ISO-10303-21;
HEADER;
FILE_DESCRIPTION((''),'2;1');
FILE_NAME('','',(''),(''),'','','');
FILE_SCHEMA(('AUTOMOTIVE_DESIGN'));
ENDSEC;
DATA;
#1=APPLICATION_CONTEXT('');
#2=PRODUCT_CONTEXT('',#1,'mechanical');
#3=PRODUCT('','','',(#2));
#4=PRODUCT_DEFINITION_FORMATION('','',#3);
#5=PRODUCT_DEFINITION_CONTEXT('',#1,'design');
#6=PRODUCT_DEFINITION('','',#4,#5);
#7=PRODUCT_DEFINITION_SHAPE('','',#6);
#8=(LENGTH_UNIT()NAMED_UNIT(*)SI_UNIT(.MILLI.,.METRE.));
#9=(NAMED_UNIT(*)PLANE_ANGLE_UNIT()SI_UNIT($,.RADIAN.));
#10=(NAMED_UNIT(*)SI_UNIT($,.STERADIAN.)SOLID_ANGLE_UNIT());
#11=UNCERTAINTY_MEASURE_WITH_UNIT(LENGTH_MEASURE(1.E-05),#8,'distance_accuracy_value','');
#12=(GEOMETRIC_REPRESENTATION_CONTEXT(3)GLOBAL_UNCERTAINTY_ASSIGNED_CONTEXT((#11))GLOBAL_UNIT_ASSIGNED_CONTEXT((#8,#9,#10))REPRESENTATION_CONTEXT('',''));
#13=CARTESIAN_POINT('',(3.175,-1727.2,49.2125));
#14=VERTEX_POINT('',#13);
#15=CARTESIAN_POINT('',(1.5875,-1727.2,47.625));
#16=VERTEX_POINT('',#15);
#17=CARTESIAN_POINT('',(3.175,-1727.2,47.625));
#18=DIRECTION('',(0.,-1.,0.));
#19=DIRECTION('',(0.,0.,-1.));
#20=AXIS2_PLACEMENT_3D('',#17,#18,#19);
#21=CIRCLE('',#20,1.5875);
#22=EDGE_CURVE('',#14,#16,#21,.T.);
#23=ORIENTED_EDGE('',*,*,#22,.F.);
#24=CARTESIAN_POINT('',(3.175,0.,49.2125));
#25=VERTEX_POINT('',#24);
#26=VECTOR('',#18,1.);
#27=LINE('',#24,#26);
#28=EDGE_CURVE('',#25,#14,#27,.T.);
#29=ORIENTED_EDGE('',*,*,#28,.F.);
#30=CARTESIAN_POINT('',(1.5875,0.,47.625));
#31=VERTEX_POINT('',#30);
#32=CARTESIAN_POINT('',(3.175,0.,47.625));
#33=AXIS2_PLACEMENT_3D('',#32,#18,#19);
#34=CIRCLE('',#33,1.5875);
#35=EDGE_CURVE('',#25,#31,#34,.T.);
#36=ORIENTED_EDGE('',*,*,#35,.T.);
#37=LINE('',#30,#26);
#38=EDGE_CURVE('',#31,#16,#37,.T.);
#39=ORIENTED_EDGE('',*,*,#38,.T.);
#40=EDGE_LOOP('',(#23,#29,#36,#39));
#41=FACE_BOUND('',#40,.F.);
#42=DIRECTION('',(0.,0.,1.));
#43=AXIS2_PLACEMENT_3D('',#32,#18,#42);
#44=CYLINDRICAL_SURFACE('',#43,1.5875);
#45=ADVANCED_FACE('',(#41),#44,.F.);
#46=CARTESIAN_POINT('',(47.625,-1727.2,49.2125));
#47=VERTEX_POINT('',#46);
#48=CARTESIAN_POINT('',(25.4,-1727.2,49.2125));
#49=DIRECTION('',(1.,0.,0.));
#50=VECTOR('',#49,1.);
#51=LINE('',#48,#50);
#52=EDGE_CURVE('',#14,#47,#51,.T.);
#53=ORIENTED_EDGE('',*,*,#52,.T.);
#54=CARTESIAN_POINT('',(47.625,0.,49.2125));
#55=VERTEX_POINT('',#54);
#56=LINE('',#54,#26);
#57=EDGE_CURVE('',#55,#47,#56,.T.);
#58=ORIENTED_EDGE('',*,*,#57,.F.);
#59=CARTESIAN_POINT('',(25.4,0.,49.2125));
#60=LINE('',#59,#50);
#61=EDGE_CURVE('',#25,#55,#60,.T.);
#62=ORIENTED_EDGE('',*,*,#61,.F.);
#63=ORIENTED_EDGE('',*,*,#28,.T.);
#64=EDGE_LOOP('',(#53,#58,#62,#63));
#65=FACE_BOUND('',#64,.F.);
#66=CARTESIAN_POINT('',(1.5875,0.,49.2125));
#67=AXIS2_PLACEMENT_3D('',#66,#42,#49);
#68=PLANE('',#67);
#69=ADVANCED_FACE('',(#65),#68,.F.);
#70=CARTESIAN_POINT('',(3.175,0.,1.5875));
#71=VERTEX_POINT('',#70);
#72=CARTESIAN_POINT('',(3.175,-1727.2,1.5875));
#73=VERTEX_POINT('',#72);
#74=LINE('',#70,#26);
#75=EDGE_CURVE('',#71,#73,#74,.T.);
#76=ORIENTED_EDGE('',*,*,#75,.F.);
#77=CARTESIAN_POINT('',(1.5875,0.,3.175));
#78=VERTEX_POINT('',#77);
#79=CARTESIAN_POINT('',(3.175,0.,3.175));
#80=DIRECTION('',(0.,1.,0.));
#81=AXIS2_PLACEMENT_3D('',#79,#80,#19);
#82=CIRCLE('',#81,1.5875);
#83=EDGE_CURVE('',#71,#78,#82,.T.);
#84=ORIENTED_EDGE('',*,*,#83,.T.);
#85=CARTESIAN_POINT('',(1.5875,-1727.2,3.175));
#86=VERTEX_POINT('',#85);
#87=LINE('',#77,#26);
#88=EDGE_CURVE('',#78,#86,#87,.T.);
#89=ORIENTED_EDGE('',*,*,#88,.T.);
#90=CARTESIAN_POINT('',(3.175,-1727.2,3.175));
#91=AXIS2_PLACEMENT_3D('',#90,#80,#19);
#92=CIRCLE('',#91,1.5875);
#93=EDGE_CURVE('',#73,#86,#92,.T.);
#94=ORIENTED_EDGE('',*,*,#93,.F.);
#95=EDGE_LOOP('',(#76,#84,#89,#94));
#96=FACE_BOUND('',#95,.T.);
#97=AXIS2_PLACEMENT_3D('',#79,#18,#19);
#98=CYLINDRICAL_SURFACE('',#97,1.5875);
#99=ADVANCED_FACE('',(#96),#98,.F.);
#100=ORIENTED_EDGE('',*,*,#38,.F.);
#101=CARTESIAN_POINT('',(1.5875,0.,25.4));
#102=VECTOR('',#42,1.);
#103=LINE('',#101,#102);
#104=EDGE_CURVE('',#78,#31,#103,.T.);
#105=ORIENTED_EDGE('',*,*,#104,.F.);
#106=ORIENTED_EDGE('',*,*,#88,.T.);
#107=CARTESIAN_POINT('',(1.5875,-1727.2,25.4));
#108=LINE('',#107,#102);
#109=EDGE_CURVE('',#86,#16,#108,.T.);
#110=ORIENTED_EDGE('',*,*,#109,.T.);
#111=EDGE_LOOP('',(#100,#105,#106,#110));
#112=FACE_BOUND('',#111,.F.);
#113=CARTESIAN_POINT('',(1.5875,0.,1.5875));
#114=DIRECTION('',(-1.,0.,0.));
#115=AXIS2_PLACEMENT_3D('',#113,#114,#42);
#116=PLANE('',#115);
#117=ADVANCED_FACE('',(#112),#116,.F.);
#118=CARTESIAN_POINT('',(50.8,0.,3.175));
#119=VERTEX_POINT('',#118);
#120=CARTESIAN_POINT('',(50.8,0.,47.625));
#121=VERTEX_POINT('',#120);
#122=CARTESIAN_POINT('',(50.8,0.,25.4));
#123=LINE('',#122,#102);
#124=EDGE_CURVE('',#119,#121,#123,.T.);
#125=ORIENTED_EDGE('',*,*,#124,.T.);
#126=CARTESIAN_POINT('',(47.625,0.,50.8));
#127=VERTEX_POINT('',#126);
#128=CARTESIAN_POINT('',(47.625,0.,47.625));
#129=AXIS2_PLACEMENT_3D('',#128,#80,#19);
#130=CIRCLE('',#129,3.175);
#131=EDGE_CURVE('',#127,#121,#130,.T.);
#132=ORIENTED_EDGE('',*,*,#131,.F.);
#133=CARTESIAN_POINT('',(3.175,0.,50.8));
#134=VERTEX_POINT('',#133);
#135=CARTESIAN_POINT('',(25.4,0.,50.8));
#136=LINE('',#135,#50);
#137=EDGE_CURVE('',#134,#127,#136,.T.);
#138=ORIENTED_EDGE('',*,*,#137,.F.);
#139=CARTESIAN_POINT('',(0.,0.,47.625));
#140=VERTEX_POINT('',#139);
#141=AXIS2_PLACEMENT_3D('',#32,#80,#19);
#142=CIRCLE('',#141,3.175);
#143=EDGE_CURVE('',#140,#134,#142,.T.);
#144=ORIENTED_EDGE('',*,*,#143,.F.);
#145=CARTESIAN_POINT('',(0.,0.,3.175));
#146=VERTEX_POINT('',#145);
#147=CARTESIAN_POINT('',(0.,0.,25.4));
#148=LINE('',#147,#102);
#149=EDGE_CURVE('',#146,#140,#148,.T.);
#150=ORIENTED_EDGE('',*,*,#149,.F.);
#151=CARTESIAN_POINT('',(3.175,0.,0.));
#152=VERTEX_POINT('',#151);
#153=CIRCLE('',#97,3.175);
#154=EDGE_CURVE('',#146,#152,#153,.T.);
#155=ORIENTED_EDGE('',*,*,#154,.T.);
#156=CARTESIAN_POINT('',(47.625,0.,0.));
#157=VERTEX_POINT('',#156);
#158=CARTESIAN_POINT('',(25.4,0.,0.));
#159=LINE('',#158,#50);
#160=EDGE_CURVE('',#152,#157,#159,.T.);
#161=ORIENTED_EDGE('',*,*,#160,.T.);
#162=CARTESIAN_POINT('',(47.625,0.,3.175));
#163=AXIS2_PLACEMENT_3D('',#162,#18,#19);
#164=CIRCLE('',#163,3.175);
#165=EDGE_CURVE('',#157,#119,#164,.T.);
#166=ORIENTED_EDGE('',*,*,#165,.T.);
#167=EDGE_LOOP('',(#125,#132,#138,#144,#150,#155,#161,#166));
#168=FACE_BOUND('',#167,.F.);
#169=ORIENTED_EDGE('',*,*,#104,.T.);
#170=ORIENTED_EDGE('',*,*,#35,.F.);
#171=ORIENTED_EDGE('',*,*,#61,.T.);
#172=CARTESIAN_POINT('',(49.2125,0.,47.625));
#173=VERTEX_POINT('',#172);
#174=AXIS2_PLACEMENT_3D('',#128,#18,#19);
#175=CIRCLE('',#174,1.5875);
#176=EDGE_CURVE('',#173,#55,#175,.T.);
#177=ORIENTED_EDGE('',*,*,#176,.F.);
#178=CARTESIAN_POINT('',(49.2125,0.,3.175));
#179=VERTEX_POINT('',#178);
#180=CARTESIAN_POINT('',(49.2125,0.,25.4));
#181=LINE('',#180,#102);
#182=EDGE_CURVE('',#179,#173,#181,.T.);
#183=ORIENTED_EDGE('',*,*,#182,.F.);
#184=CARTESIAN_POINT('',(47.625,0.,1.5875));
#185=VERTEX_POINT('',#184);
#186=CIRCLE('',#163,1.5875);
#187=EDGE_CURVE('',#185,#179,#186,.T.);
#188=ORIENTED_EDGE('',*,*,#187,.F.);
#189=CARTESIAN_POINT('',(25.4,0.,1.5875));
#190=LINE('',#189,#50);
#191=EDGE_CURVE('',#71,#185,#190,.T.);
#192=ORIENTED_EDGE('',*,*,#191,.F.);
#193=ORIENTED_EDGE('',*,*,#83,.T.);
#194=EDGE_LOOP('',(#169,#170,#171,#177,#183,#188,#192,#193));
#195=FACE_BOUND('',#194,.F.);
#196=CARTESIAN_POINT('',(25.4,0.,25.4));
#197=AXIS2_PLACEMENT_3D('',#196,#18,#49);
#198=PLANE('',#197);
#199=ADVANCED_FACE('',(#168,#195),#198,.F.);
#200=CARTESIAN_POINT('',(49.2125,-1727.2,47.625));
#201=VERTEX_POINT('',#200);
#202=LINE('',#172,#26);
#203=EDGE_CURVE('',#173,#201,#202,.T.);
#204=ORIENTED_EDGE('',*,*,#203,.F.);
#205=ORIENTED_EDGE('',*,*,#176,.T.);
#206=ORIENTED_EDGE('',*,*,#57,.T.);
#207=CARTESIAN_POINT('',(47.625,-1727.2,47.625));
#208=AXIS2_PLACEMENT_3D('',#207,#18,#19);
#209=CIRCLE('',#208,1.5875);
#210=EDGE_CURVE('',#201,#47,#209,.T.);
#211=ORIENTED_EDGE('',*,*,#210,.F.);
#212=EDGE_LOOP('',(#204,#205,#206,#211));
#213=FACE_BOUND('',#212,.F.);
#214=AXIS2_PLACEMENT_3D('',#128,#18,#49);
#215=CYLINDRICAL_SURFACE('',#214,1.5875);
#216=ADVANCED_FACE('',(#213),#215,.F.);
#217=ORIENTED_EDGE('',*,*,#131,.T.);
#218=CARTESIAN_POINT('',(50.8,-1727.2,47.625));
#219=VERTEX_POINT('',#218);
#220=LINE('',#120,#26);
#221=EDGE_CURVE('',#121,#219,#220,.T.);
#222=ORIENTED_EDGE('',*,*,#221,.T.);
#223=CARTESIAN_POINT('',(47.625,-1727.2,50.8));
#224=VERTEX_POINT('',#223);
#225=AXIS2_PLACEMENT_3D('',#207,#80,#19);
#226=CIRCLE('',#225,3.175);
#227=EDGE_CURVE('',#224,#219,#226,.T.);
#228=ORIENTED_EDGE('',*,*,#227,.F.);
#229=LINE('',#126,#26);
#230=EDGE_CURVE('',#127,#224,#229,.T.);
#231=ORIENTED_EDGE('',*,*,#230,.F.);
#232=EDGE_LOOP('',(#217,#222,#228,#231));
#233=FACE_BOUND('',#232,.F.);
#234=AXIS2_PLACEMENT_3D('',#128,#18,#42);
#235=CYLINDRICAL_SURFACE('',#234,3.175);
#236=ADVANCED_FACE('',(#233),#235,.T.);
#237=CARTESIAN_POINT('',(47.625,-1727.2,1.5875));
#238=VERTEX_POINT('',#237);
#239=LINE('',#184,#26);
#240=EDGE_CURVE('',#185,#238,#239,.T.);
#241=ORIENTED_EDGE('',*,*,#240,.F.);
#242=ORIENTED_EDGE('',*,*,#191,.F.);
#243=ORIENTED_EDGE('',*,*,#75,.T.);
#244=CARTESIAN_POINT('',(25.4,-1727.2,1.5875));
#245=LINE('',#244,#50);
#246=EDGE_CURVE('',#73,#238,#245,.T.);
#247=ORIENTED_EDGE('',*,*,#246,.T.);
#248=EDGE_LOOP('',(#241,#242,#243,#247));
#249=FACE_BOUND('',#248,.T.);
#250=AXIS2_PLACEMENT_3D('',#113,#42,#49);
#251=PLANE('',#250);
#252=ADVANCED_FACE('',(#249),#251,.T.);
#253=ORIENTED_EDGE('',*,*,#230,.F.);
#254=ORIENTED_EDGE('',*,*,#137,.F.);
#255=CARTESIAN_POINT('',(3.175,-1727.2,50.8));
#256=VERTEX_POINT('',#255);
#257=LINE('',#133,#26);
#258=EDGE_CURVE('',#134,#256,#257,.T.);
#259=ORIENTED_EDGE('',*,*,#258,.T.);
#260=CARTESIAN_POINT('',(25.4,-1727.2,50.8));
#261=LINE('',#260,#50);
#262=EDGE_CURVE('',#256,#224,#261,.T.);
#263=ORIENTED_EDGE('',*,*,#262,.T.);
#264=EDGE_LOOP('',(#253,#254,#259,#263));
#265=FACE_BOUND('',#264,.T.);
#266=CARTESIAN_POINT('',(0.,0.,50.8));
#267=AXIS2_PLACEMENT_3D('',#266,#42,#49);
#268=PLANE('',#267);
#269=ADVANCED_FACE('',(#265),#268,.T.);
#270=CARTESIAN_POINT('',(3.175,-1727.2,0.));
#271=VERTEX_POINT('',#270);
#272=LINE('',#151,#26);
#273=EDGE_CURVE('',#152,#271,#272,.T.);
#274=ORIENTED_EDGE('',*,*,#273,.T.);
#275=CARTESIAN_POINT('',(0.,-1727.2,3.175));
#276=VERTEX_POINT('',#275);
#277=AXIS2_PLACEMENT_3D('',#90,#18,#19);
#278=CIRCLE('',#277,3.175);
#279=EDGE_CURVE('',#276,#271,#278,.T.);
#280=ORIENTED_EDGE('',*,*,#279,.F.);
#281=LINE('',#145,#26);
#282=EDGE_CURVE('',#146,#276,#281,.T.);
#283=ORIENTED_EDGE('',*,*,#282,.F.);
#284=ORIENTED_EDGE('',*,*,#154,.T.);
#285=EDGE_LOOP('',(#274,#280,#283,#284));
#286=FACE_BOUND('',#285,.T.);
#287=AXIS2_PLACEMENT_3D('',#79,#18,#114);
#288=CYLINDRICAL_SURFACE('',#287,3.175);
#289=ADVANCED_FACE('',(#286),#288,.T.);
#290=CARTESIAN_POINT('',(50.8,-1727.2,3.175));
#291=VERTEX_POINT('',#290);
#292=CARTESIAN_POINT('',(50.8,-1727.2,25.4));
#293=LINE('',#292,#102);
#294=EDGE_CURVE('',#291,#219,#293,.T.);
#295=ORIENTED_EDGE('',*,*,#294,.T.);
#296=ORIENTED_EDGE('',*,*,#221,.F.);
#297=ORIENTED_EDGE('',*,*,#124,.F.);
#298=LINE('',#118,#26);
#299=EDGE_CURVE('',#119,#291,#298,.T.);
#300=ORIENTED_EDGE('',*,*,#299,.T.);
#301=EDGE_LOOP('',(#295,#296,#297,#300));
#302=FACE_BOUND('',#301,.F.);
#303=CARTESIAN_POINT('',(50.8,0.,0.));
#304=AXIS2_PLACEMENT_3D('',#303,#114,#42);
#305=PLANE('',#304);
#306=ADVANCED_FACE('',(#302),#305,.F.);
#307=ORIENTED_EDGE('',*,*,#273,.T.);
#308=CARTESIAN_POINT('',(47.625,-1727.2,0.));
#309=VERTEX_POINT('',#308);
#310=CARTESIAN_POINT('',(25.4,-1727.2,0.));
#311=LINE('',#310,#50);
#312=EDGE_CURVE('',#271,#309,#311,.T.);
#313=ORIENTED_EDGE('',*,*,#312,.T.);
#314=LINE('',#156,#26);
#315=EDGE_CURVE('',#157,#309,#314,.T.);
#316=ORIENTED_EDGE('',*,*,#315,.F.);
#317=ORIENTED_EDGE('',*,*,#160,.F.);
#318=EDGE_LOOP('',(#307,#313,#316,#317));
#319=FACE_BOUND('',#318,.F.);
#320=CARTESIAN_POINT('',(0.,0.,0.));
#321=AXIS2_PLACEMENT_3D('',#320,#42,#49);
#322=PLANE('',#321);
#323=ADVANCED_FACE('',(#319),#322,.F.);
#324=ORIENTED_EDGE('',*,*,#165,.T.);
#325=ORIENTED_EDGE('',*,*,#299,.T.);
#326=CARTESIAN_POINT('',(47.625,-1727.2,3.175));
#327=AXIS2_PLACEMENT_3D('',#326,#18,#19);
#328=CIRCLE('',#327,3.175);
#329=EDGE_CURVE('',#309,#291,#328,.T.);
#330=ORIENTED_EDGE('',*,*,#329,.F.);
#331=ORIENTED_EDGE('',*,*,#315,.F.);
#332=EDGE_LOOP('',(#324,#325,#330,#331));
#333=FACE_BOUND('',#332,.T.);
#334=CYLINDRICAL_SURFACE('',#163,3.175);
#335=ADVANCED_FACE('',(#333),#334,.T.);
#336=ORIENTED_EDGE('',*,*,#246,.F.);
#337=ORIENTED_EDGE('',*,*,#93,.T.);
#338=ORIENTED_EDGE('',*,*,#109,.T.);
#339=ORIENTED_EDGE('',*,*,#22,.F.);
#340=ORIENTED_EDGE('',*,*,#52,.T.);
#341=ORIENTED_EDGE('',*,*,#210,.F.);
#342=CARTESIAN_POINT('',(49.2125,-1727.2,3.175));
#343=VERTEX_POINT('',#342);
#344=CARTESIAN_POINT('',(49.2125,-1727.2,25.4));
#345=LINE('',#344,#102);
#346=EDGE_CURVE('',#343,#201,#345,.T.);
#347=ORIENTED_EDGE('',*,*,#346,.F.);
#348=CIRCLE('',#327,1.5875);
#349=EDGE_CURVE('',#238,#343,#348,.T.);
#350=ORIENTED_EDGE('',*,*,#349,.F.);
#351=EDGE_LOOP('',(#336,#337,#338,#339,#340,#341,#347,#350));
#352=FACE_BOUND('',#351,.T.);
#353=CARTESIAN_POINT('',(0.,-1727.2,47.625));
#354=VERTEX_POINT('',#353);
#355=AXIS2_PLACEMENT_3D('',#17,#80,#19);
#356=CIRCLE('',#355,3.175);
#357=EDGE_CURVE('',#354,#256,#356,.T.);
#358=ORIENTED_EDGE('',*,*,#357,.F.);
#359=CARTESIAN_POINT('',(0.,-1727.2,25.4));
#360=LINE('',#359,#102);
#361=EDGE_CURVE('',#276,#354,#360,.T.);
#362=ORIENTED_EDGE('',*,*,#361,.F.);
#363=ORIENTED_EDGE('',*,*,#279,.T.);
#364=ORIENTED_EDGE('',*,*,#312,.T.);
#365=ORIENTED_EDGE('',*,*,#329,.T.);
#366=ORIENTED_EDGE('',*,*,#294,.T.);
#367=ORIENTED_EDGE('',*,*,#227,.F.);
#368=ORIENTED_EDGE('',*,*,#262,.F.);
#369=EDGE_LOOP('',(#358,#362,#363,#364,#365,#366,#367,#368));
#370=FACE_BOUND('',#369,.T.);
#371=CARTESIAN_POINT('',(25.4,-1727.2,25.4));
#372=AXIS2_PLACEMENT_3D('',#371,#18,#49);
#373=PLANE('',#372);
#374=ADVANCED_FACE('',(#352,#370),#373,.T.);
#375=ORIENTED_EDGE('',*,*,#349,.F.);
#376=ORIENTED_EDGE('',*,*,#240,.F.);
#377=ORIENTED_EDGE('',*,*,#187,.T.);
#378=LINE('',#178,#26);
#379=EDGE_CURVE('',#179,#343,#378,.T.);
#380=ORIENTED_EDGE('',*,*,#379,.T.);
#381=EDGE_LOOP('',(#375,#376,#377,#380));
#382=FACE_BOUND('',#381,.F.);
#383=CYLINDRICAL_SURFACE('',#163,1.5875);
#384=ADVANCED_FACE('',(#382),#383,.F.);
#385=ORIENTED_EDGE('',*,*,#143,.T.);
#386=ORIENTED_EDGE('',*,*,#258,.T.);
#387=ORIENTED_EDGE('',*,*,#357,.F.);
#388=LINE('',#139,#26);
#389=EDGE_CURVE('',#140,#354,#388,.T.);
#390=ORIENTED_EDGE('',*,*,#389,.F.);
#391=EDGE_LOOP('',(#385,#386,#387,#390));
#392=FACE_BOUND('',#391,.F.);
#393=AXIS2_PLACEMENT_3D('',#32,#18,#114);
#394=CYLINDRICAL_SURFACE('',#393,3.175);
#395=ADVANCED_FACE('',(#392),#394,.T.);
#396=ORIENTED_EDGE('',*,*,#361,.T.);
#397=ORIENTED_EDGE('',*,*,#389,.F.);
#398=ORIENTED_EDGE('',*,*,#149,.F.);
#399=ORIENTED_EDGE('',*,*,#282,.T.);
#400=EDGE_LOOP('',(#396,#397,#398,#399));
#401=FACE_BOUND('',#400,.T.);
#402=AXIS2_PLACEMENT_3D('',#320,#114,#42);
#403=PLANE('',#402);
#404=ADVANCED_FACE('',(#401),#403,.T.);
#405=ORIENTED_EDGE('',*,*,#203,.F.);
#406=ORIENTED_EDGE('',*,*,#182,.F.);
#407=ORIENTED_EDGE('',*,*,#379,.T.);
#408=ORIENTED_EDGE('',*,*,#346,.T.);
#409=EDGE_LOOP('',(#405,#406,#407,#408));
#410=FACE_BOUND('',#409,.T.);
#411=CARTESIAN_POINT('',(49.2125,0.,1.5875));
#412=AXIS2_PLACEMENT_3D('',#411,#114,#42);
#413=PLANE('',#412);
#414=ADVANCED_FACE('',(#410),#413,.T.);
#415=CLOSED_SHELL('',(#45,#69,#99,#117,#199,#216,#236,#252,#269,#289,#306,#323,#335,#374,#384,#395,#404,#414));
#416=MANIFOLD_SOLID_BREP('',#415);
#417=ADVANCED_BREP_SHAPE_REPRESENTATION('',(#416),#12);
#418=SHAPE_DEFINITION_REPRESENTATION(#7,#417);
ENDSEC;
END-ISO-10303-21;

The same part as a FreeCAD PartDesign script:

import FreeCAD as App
import Part
import Sketcher

V = App.Vector
Q = App.Units.Quantity


def edges_at(feature, points):
    """Names of the edges that pass closest to the given points."""
    edges = feature.Shape.Edges
    near = lambda p: min(range(len(edges)), key=lambda i: edges[i].distToShape(Part.Vertex(*p))[0])
    return sorted({f"Edge{near(p) + 1}" for p in points})


def add_polygon(sketch, points):
    """Adds a closed chain of lines whose ends are joined by coincident constraints."""
    first, n = sketch.GeometryCount, len(points)
    for a, b in zip(points, points[1:] + points[:1]):
        sketch.addGeometry(Part.LineSegment(App.Vector(*a, 0), App.Vector(*b, 0)), False)
    for i in range(n):
        sketch.addConstraint(Sketcher.Constraint("Coincident", first + i, 2, first + (i + 1) % n, 1))

doc = App.newDocument("Part")
body = doc.addObject("PartDesign::Body", "Body")

# Sketch on XZ plane
sketch1 = body.newObject("Sketcher::SketchObject", "Sketch")
sketch1.AttachmentSupport = (doc.getObject("XZ_Plane"), [""])
sketch1.MapMode = "FlatFace"
add_polygon(sketch1, [(0, 50.8), (0, 0), (50.8, 0), (50.8, 50.8)])  # lines 0-3
add_polygon(sketch1, [(49.2125, 1.5875), (1.5875, 1.5875), (1.5875, 49.2125), (49.2125, 49.2125)])  # lines 4-7
sketch1.addConstraint([
    Sketcher.Constraint("Vertical", 0),
    Sketcher.Constraint("Horizontal", 1),
    Sketcher.Constraint("Vertical", 2),
    Sketcher.Constraint("Horizontal", 3),
    Sketcher.Constraint("Horizontal", 4),
    Sketcher.Constraint("Vertical", 5),
    Sketcher.Constraint("Horizontal", 6),
    Sketcher.Constraint("Vertical", 7),
    Sketcher.Constraint("Coincident", 0, 2, -1, 1),
    Sketcher.Constraint("Equal", 3, 0),
    Sketcher.Constraint("Equal", 6, 5),
    Sketcher.Constraint("DistanceX", 1, 1, 1, 2, Q("2 in")),
    Sketcher.Constraint("DistanceX", 4, 2, 4, 1, Q("1.875 in")),
    Sketcher.Constraint("DistanceX", -1, 1, 4, 2, Q("0.0625 in")),
    Sketcher.Constraint("DistanceY", -1, 1, 4, 2, Q("0.0625 in")),
])
pad1 = body.newObject("PartDesign::Pad", "Pad")
pad1.Profile = sketch1
pad1.Length = Q("68 in")
doc.recompute()

fillet = body.newObject("PartDesign::Fillet", "Fillet")
fillet.Base = (pad1, edges_at(pad1, [
    (0, -863.6, 50.8),
    (50.8, -863.6, 50.8),
    (50.8, -863.6, 0),
    (0, -863.6, 0),
]))
fillet.Radius = Q("0.125 in")
doc.recompute()

fillet2 = body.newObject("PartDesign::Fillet", "Fillet001")
fillet2.Base = (fillet, edges_at(fillet, [
    (1.587, -863.6, 49.212),
    (49.212, -863.6, 49.212),
    (1.587, -863.6, 1.587),
    (49.212, -863.6, 1.587),
]))
fillet2.Radius = Q("0.0625 in")

doc.recompute()
